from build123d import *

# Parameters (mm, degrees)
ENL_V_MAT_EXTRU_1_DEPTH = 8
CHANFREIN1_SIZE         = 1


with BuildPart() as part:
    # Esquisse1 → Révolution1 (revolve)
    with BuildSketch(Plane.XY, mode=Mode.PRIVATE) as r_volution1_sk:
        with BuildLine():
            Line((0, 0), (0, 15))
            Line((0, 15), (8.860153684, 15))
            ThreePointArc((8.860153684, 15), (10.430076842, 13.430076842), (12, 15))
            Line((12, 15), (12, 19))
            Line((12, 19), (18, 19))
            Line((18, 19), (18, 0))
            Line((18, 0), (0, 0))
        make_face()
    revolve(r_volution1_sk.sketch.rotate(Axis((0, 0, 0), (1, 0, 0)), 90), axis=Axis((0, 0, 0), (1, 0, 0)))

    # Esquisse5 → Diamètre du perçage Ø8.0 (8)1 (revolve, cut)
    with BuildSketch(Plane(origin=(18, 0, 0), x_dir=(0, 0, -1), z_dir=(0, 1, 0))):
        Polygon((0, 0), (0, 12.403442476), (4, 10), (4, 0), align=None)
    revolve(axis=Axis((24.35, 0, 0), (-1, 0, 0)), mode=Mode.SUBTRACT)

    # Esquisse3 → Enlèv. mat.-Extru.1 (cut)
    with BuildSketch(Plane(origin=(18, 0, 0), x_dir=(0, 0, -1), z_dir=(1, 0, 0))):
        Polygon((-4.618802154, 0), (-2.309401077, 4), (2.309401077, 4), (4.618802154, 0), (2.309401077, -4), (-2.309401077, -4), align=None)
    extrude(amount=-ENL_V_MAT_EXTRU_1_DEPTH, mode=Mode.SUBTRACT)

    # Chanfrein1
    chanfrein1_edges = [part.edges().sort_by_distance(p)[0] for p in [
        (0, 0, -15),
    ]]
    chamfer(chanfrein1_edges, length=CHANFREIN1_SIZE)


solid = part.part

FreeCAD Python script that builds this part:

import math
import FreeCAD as App
import Part
import Sketcher

V = App.Vector
Q = App.Units.Quantity


def edges_at(feature, points):
    """Names of the edges that pass closest to the given points."""
    edges = feature.Shape.Edges
    near = lambda p: min(range(len(edges)), key=lambda i: edges[i].distToShape(Part.Vertex(*p))[0])
    return sorted({f"Edge{near(p) + 1}" for p in points})


def add_polygon(sketch, points):
    """Adds a closed chain of lines whose ends are joined by coincident constraints."""
    first, n = sketch.GeometryCount, len(points)
    for a, b in zip(points, points[1:] + points[:1]):
        sketch.addGeometry(Part.LineSegment(App.Vector(*a, 0), App.Vector(*b, 0)), False)
    for i in range(n):
        sketch.addConstraint(Sketcher.Constraint("Coincident", first + i, 2, first + (i + 1) % n, 1))

doc = App.newDocument("Part")
body = doc.addObject("PartDesign::Body", "Body")

# Sketch on XY plane
sketch1 = body.newObject("Sketcher::SketchObject", "Sketch")
sketch1.AttachmentSupport = (doc.getObject("XY_Plane"), [""])
sketch1.MapMode = "FlatFace"
sketch1.addGeometry(Part.LineSegment(V(0, 15, 0), V(0, 0, 0)), False)
sketch1.addGeometry(Part.LineSegment(V(0, 0, 0), V(18, 0, 0)), False)
sketch1.addGeometry(Part.LineSegment(V(18, 0, 0), V(18, 19, 0)), False)
sketch1.addGeometry(Part.LineSegment(V(18, 19, 0), V(12, 19, 0)), False)
sketch1.addGeometry(Part.LineSegment(V(12, 19, 0), V(12, 15, 0)), False)
sketch1.addGeometry(Part.ArcOfCircle(Part.Circle(V(10.4, 15, 0), V(0, 0, 1), 1.6), math.radians(180), math.radians(360)), False)
sketch1.addGeometry(Part.LineSegment(V(8.9, 15, 0), V(0, 15, 0)), False)
sketch1.addConstraint(Sketcher.Constraint("Coincident", 0, 2, 1, 1))
sketch1.addConstraint(Sketcher.Constraint("Coincident", 1, 2, 2, 1))
sketch1.addConstraint(Sketcher.Constraint("Coincident", 2, 2, 3, 1))
sketch1.addConstraint(Sketcher.Constraint("Coincident", 3, 2, 4, 1))
sketch1.addConstraint(Sketcher.Constraint("Tangent", 4, 2, 5, 2))
sketch1.addConstraint(Sketcher.Constraint("Coincident", 5, 1, 6, 1))
sketch1.addConstraint(Sketcher.Constraint("Coincident", 6, 2, 0, 1))
sketch1.addConstraint(Sketcher.Constraint("Vertical", 0))
sketch1.addConstraint(Sketcher.Constraint("Horizontal", 1))
sketch1.addConstraint(Sketcher.Constraint("Vertical", 2))
sketch1.addConstraint(Sketcher.Constraint("Horizontal", 3))
sketch1.addConstraint(Sketcher.Constraint("Vertical", 4))
sketch1.addConstraint(Sketcher.Constraint("Horizontal", 6))
sketch1.addConstraint(Sketcher.Constraint("Coincident", 0, 2, -1, 1))
sketch1.addConstraint(Sketcher.Constraint("Horizontal", 4, 2, 5, 1))
sketch1.addConstraint(Sketcher.Constraint("DistanceX", 1, 1, 1, 2, 18.0))
sketch1.addConstraint(Sketcher.Constraint("DistanceX", 3, 2, 3, 1, 6.0))
sketch1.addConstraint(Sketcher.Constraint("DistanceY", 0, 2, 0, 1, 15.0))
sketch1.addConstraint(Sketcher.Constraint("DistanceY", 2, 1, 2, 2, 19.0))
sketch1.addConstraint(Sketcher.Constraint("Radius", 5, 1.569923))
revolution = body.newObject("PartDesign::Revolution", "Revolution")
revolution.Profile = sketch1
revolution.ReferenceAxis = (sketch1, ["H_Axis"])
revolution.Angle = 360

# Sketch on XZ plane
sketch2 = body.newObject("Sketcher::SketchObject", "Sketch001")
sketch2.AttachmentSupport = (doc.getObject("XZ_Plane"), [""])
sketch2.MapMode = "FlatFace"
add_polygon(sketch2, [(5.6, 0), (18, 0), (18, -4), (8, -4)])  # lines 0-3
sketch2.addConstraint(Sketcher.Constraint("Horizontal", 0))
sketch2.addConstraint(Sketcher.Constraint("Vertical", 1))
sketch2.addConstraint(Sketcher.Constraint("Horizontal", 2))
sketch2.addConstraint(Sketcher.Constraint("PointOnObject", 0, 2, -1))
sketch2.addConstraint(Sketcher.Constraint("DistanceX", 2, 2, 2, 1, 10.0))
sketch2.addConstraint(Sketcher.Constraint("DistanceY", 1, 2, 1, 1, 4.0))
sketch2.addConstraint(Sketcher.Constraint("Angle", 3, Q("121 deg")))
sketch2.addConstraint(Sketcher.Constraint("DistanceX", -1, 1, 0, 2, 18.0))
groove = body.newObject("PartDesign::Groove", "Groove")
groove.Profile = sketch2
groove.ReferenceAxis = (sketch2, ["H_Axis"])
groove.Angle = 360

# Sketch on YZ plane
sketch3 = body.newObject("Sketcher::SketchObject", "Sketch002")
sketch3.AttachmentSupport = (doc.getObject("YZ_Plane"), [""])
sketch3.MapMode = "FlatFace"
sketch3.AttachmentOffset = App.Placement(V(0, 0, 18), App.Rotation())
add_polygon(sketch3, [(4, 2.3), (0, 4.6), (-4, 2.3), (-4, -2.3), (0, -4.6), (4, -2.3)])  # lines 0-5
sketch3.addConstraint(Sketcher.Constraint("Vertical", 2))
sketch3.addConstraint(Sketcher.Constraint("Vertical", 5))
sketch3.addConstraint(Sketcher.Constraint("Symmetric", 0, 2, 3, 2, -1, 1))
sketch3.addConstraint(Sketcher.Constraint("Symmetric", 1, 2, 4, 2, -1, 1))
sketch3.addConstraint(Sketcher.Constraint("PointOnObject", 0, 2, -2))
sketch3.addConstraint(Sketcher.Constraint("Parallel", 0, 3))
sketch3.addConstraint(Sketcher.Constraint("Horizontal", 2, 2, 4, 2))
sketch3.addConstraint(Sketcher.Constraint("Angle", 0, Q("150 deg")))
sketch3.addConstraint(Sketcher.Constraint("DistanceX", 1, 2, -1, 1, 4.0))
sketch3.addConstraint(Sketcher.Constraint("DistanceY", -1, 1, 1, 2, 2.309401))
pocket1 = body.newObject("PartDesign::Pocket", "Pocket")
pocket1.Profile = sketch3
pocket1.Length = 8
doc.recompute()

chamfer = body.newObject("PartDesign::Chamfer", "Chamfer")
chamfer.Base = (pocket1, edges_at(pocket1, [(0, 0, -15)]))
chamfer.Size = 1

doc.recompute()
